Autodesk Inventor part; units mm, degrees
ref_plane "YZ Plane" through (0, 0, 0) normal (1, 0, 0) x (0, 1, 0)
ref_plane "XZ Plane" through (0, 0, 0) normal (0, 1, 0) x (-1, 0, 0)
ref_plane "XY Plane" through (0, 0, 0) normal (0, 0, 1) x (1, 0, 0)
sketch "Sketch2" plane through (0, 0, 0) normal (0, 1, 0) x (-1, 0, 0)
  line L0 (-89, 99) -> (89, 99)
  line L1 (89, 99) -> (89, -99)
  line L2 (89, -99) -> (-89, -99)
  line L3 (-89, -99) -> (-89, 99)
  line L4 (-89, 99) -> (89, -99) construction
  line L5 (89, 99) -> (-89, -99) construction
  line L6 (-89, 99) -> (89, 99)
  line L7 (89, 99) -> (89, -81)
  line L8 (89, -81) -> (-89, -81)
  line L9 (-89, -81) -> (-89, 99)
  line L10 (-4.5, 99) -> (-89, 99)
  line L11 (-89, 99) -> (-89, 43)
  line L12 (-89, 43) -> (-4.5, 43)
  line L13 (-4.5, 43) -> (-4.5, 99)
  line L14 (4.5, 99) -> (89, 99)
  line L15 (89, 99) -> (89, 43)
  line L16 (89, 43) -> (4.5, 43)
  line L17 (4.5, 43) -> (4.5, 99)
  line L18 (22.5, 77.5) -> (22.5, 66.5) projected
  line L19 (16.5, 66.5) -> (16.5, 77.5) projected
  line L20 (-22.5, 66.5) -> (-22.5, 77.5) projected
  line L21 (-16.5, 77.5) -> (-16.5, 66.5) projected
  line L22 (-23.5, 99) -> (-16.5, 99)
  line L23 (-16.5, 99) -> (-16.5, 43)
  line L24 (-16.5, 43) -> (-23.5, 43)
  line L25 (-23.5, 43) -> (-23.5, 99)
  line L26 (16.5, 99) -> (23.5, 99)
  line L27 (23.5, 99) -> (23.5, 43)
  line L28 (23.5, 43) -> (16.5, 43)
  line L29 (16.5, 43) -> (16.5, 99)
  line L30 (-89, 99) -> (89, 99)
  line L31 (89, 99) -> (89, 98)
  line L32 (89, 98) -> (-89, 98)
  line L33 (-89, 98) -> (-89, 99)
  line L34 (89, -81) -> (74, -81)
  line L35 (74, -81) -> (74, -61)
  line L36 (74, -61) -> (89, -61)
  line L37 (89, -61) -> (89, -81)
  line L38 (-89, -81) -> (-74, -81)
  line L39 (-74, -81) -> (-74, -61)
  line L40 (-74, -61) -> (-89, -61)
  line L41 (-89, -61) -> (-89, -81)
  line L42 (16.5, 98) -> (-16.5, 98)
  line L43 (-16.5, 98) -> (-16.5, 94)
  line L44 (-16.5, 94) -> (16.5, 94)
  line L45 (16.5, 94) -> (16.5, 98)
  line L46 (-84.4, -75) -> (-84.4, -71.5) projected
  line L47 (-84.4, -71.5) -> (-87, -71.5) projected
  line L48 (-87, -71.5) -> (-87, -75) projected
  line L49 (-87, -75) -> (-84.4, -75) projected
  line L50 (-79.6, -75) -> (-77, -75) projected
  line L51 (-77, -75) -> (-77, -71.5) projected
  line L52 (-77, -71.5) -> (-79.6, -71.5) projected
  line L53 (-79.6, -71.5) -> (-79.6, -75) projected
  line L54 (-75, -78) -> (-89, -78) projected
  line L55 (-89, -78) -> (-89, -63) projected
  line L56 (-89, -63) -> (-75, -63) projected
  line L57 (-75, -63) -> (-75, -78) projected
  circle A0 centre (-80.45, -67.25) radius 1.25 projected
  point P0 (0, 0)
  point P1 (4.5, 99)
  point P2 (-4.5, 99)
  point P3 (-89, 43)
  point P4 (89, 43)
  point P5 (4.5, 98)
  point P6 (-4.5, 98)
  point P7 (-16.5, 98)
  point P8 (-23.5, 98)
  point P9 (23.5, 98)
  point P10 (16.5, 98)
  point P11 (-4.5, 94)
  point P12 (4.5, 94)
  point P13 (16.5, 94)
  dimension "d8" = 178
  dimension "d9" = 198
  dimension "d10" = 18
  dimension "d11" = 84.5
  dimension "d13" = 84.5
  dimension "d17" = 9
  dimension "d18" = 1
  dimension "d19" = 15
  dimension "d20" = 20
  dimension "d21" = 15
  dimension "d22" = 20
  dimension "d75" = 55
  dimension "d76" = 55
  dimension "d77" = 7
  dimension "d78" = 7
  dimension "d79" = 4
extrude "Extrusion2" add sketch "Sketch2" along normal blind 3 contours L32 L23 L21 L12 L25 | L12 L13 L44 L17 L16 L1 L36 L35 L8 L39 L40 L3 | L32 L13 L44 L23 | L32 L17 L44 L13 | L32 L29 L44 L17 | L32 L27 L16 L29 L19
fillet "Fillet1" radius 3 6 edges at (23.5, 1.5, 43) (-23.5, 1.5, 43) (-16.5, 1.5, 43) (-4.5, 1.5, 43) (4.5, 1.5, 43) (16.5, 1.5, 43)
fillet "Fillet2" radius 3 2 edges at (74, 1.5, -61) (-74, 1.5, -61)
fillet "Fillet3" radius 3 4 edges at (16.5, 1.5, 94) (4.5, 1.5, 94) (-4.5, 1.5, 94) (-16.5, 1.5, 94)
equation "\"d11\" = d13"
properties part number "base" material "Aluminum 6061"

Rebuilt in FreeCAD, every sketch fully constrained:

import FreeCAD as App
import Part
import Sketcher
from FreeCAD import Vector
Q = App.Units.Quantity


def edges_at(feature, points):
    """Names of the edges that pass closest to the given points."""
    edges = feature.Shape.Edges
    near = lambda p: min(range(len(edges)), key=lambda i: edges[i].distToShape(Part.Vertex(*p))[0])
    return sorted({f"Edge{near(p) + 1}" for p in points})


def add_polygon(sketch, points):
    """Adds a closed chain of lines whose ends are joined by coincident constraints."""
    first, n = sketch.GeometryCount, len(points)
    for a, b in zip(points, points[1:] + points[:1]):
        sketch.addGeometry(Part.LineSegment(App.Vector(*a, 0), App.Vector(*b, 0)), False)
    for i in range(n):
        sketch.addConstraint(Sketcher.Constraint("Coincident", first + i, 2, first + (i + 1) % n, 1))

doc = App.newDocument("Part")
body = doc.addObject("PartDesign::Body", "Body")

# Sketch on XZ plane
sketch1 = body.newObject("Sketcher::SketchObject", "Sketch")
sketch1.AttachmentSupport = (doc.getObject("XZ_Plane"), [""])
sketch1.MapMode = "FlatFace"
add_polygon(sketch1, [(24, 98), (24, 43), (89, 43), (89, -61), (74, -61), (74, -81), (-74, -81), (-74, -61), (-89, -61), (-89, 43), (-24, 43), (-24, 98)])  # lines 0-11
add_polygon(sketch1, [(16, 94), (4, 94), (4, 43), (16, 43)])  # lines 12-15
add_polygon(sketch1, [(-4, 43), (-4, 94), (-16, 94), (-16, 43)])  # lines 16-19
sketch1.addConstraint([
    Sketcher.Constraint("Vertical", 0),
    Sketcher.Constraint("Horizontal", 1),
    Sketcher.Constraint("Vertical", 2),
    Sketcher.Constraint("Horizontal", 3),
    Sketcher.Constraint("Vertical", 4),
    Sketcher.Constraint("Horizontal", 5),
    Sketcher.Constraint("Vertical", 6),
    Sketcher.Constraint("Horizontal", 7),
    Sketcher.Constraint("Vertical", 8),
    Sketcher.Constraint("Horizontal", 9),
    Sketcher.Constraint("Vertical", 10),
    Sketcher.Constraint("Horizontal", 11),
    Sketcher.Constraint("Horizontal", 12),
    Sketcher.Constraint("Vertical", 13),
    Sketcher.Constraint("Horizontal", 14),
    Sketcher.Constraint("Vertical", 15),
    Sketcher.Constraint("Vertical", 16),
    Sketcher.Constraint("Horizontal", 17),
    Sketcher.Constraint("Vertical", 18),
    Sketcher.Constraint("Horizontal", 19),
    Sketcher.Constraint("Symmetric", 3, 2, 6, 2, -2),
    Sketcher.Constraint("Symmetric", 1, 2, 8, 2, -2),
    Sketcher.Constraint("Symmetric", 12, 2, 16, 2, -2),
    Sketcher.Constraint("Symmetric", 14, 2, 18, 2, -2),
    Sketcher.Constraint("Horizontal", 9, 2, 13, 2),
    Sketcher.Constraint("Equal", 1, 9),
    Sketcher.Constraint("DistanceX", 3, 2, 3, 1, Q("15 mm")),
    Sketcher.Constraint("DistanceY", 0, 2, 0, 1, Q("55 mm")),
    Sketcher.Constraint("DistanceY", 4, 2, 4, 1, Q("20 mm")),
    Sketcher.Constraint("DistanceX", 8, 2, 1, 2, Q("178 mm")),
    Sketcher.Constraint("DistanceY", 12, 2, 11, 2, Q("4 mm")),
    Sketcher.Constraint("DistanceX", 14, 2, 0, 2, Q("7 mm")),
    Sketcher.Constraint("DistanceX", 16, 2, 12, 2, Q("9 mm")),
    Sketcher.Constraint("DistanceX", 11, 1, 11, 2, Q("47 mm")),
    Sketcher.Constraint("DistanceY", 2, 2, 2, 1, Q("104 mm")),
    Sketcher.Constraint("DistanceY", -1, 1, 0, 2, Q("43 mm")),
])
pad1 = body.newObject("PartDesign::Pad", "Pad")
pad1.Profile = sketch1
pad1.Length = 3
pad1.Reversed = True
doc.recompute()

fillet = body.newObject("PartDesign::Fillet", "Fillet")
fillet.Base = (pad1, edges_at(pad1, [
    (23.5, 1.5, 43),
    (-23.5, 1.5, 43),
    (-16.5, 1.5, 43),
    (-4.5, 1.5, 43),
    (4.5, 1.5, 43),
    (16.5, 1.5, 43),
]))
fillet.Radius = 3
doc.recompute()

fillet2 = body.newObject("PartDesign::Fillet", "Fillet001")
fillet2.Base = (fillet, edges_at(fillet, [(74, 1.5, -61), (-74, 1.5, -61)]))
fillet2.Radius = 3
doc.recompute()

fillet3 = body.newObject("PartDesign::Fillet", "Fillet002")
fillet3.Base = (fillet2, edges_at(fillet2, [
    (16.5, 1.5, 94),
    (4.5, 1.5, 94),
    (-4.5, 1.5, 94),
    (-16.5, 1.5, 94),
]))
fillet3.Radius = 3

doc.recompute()
